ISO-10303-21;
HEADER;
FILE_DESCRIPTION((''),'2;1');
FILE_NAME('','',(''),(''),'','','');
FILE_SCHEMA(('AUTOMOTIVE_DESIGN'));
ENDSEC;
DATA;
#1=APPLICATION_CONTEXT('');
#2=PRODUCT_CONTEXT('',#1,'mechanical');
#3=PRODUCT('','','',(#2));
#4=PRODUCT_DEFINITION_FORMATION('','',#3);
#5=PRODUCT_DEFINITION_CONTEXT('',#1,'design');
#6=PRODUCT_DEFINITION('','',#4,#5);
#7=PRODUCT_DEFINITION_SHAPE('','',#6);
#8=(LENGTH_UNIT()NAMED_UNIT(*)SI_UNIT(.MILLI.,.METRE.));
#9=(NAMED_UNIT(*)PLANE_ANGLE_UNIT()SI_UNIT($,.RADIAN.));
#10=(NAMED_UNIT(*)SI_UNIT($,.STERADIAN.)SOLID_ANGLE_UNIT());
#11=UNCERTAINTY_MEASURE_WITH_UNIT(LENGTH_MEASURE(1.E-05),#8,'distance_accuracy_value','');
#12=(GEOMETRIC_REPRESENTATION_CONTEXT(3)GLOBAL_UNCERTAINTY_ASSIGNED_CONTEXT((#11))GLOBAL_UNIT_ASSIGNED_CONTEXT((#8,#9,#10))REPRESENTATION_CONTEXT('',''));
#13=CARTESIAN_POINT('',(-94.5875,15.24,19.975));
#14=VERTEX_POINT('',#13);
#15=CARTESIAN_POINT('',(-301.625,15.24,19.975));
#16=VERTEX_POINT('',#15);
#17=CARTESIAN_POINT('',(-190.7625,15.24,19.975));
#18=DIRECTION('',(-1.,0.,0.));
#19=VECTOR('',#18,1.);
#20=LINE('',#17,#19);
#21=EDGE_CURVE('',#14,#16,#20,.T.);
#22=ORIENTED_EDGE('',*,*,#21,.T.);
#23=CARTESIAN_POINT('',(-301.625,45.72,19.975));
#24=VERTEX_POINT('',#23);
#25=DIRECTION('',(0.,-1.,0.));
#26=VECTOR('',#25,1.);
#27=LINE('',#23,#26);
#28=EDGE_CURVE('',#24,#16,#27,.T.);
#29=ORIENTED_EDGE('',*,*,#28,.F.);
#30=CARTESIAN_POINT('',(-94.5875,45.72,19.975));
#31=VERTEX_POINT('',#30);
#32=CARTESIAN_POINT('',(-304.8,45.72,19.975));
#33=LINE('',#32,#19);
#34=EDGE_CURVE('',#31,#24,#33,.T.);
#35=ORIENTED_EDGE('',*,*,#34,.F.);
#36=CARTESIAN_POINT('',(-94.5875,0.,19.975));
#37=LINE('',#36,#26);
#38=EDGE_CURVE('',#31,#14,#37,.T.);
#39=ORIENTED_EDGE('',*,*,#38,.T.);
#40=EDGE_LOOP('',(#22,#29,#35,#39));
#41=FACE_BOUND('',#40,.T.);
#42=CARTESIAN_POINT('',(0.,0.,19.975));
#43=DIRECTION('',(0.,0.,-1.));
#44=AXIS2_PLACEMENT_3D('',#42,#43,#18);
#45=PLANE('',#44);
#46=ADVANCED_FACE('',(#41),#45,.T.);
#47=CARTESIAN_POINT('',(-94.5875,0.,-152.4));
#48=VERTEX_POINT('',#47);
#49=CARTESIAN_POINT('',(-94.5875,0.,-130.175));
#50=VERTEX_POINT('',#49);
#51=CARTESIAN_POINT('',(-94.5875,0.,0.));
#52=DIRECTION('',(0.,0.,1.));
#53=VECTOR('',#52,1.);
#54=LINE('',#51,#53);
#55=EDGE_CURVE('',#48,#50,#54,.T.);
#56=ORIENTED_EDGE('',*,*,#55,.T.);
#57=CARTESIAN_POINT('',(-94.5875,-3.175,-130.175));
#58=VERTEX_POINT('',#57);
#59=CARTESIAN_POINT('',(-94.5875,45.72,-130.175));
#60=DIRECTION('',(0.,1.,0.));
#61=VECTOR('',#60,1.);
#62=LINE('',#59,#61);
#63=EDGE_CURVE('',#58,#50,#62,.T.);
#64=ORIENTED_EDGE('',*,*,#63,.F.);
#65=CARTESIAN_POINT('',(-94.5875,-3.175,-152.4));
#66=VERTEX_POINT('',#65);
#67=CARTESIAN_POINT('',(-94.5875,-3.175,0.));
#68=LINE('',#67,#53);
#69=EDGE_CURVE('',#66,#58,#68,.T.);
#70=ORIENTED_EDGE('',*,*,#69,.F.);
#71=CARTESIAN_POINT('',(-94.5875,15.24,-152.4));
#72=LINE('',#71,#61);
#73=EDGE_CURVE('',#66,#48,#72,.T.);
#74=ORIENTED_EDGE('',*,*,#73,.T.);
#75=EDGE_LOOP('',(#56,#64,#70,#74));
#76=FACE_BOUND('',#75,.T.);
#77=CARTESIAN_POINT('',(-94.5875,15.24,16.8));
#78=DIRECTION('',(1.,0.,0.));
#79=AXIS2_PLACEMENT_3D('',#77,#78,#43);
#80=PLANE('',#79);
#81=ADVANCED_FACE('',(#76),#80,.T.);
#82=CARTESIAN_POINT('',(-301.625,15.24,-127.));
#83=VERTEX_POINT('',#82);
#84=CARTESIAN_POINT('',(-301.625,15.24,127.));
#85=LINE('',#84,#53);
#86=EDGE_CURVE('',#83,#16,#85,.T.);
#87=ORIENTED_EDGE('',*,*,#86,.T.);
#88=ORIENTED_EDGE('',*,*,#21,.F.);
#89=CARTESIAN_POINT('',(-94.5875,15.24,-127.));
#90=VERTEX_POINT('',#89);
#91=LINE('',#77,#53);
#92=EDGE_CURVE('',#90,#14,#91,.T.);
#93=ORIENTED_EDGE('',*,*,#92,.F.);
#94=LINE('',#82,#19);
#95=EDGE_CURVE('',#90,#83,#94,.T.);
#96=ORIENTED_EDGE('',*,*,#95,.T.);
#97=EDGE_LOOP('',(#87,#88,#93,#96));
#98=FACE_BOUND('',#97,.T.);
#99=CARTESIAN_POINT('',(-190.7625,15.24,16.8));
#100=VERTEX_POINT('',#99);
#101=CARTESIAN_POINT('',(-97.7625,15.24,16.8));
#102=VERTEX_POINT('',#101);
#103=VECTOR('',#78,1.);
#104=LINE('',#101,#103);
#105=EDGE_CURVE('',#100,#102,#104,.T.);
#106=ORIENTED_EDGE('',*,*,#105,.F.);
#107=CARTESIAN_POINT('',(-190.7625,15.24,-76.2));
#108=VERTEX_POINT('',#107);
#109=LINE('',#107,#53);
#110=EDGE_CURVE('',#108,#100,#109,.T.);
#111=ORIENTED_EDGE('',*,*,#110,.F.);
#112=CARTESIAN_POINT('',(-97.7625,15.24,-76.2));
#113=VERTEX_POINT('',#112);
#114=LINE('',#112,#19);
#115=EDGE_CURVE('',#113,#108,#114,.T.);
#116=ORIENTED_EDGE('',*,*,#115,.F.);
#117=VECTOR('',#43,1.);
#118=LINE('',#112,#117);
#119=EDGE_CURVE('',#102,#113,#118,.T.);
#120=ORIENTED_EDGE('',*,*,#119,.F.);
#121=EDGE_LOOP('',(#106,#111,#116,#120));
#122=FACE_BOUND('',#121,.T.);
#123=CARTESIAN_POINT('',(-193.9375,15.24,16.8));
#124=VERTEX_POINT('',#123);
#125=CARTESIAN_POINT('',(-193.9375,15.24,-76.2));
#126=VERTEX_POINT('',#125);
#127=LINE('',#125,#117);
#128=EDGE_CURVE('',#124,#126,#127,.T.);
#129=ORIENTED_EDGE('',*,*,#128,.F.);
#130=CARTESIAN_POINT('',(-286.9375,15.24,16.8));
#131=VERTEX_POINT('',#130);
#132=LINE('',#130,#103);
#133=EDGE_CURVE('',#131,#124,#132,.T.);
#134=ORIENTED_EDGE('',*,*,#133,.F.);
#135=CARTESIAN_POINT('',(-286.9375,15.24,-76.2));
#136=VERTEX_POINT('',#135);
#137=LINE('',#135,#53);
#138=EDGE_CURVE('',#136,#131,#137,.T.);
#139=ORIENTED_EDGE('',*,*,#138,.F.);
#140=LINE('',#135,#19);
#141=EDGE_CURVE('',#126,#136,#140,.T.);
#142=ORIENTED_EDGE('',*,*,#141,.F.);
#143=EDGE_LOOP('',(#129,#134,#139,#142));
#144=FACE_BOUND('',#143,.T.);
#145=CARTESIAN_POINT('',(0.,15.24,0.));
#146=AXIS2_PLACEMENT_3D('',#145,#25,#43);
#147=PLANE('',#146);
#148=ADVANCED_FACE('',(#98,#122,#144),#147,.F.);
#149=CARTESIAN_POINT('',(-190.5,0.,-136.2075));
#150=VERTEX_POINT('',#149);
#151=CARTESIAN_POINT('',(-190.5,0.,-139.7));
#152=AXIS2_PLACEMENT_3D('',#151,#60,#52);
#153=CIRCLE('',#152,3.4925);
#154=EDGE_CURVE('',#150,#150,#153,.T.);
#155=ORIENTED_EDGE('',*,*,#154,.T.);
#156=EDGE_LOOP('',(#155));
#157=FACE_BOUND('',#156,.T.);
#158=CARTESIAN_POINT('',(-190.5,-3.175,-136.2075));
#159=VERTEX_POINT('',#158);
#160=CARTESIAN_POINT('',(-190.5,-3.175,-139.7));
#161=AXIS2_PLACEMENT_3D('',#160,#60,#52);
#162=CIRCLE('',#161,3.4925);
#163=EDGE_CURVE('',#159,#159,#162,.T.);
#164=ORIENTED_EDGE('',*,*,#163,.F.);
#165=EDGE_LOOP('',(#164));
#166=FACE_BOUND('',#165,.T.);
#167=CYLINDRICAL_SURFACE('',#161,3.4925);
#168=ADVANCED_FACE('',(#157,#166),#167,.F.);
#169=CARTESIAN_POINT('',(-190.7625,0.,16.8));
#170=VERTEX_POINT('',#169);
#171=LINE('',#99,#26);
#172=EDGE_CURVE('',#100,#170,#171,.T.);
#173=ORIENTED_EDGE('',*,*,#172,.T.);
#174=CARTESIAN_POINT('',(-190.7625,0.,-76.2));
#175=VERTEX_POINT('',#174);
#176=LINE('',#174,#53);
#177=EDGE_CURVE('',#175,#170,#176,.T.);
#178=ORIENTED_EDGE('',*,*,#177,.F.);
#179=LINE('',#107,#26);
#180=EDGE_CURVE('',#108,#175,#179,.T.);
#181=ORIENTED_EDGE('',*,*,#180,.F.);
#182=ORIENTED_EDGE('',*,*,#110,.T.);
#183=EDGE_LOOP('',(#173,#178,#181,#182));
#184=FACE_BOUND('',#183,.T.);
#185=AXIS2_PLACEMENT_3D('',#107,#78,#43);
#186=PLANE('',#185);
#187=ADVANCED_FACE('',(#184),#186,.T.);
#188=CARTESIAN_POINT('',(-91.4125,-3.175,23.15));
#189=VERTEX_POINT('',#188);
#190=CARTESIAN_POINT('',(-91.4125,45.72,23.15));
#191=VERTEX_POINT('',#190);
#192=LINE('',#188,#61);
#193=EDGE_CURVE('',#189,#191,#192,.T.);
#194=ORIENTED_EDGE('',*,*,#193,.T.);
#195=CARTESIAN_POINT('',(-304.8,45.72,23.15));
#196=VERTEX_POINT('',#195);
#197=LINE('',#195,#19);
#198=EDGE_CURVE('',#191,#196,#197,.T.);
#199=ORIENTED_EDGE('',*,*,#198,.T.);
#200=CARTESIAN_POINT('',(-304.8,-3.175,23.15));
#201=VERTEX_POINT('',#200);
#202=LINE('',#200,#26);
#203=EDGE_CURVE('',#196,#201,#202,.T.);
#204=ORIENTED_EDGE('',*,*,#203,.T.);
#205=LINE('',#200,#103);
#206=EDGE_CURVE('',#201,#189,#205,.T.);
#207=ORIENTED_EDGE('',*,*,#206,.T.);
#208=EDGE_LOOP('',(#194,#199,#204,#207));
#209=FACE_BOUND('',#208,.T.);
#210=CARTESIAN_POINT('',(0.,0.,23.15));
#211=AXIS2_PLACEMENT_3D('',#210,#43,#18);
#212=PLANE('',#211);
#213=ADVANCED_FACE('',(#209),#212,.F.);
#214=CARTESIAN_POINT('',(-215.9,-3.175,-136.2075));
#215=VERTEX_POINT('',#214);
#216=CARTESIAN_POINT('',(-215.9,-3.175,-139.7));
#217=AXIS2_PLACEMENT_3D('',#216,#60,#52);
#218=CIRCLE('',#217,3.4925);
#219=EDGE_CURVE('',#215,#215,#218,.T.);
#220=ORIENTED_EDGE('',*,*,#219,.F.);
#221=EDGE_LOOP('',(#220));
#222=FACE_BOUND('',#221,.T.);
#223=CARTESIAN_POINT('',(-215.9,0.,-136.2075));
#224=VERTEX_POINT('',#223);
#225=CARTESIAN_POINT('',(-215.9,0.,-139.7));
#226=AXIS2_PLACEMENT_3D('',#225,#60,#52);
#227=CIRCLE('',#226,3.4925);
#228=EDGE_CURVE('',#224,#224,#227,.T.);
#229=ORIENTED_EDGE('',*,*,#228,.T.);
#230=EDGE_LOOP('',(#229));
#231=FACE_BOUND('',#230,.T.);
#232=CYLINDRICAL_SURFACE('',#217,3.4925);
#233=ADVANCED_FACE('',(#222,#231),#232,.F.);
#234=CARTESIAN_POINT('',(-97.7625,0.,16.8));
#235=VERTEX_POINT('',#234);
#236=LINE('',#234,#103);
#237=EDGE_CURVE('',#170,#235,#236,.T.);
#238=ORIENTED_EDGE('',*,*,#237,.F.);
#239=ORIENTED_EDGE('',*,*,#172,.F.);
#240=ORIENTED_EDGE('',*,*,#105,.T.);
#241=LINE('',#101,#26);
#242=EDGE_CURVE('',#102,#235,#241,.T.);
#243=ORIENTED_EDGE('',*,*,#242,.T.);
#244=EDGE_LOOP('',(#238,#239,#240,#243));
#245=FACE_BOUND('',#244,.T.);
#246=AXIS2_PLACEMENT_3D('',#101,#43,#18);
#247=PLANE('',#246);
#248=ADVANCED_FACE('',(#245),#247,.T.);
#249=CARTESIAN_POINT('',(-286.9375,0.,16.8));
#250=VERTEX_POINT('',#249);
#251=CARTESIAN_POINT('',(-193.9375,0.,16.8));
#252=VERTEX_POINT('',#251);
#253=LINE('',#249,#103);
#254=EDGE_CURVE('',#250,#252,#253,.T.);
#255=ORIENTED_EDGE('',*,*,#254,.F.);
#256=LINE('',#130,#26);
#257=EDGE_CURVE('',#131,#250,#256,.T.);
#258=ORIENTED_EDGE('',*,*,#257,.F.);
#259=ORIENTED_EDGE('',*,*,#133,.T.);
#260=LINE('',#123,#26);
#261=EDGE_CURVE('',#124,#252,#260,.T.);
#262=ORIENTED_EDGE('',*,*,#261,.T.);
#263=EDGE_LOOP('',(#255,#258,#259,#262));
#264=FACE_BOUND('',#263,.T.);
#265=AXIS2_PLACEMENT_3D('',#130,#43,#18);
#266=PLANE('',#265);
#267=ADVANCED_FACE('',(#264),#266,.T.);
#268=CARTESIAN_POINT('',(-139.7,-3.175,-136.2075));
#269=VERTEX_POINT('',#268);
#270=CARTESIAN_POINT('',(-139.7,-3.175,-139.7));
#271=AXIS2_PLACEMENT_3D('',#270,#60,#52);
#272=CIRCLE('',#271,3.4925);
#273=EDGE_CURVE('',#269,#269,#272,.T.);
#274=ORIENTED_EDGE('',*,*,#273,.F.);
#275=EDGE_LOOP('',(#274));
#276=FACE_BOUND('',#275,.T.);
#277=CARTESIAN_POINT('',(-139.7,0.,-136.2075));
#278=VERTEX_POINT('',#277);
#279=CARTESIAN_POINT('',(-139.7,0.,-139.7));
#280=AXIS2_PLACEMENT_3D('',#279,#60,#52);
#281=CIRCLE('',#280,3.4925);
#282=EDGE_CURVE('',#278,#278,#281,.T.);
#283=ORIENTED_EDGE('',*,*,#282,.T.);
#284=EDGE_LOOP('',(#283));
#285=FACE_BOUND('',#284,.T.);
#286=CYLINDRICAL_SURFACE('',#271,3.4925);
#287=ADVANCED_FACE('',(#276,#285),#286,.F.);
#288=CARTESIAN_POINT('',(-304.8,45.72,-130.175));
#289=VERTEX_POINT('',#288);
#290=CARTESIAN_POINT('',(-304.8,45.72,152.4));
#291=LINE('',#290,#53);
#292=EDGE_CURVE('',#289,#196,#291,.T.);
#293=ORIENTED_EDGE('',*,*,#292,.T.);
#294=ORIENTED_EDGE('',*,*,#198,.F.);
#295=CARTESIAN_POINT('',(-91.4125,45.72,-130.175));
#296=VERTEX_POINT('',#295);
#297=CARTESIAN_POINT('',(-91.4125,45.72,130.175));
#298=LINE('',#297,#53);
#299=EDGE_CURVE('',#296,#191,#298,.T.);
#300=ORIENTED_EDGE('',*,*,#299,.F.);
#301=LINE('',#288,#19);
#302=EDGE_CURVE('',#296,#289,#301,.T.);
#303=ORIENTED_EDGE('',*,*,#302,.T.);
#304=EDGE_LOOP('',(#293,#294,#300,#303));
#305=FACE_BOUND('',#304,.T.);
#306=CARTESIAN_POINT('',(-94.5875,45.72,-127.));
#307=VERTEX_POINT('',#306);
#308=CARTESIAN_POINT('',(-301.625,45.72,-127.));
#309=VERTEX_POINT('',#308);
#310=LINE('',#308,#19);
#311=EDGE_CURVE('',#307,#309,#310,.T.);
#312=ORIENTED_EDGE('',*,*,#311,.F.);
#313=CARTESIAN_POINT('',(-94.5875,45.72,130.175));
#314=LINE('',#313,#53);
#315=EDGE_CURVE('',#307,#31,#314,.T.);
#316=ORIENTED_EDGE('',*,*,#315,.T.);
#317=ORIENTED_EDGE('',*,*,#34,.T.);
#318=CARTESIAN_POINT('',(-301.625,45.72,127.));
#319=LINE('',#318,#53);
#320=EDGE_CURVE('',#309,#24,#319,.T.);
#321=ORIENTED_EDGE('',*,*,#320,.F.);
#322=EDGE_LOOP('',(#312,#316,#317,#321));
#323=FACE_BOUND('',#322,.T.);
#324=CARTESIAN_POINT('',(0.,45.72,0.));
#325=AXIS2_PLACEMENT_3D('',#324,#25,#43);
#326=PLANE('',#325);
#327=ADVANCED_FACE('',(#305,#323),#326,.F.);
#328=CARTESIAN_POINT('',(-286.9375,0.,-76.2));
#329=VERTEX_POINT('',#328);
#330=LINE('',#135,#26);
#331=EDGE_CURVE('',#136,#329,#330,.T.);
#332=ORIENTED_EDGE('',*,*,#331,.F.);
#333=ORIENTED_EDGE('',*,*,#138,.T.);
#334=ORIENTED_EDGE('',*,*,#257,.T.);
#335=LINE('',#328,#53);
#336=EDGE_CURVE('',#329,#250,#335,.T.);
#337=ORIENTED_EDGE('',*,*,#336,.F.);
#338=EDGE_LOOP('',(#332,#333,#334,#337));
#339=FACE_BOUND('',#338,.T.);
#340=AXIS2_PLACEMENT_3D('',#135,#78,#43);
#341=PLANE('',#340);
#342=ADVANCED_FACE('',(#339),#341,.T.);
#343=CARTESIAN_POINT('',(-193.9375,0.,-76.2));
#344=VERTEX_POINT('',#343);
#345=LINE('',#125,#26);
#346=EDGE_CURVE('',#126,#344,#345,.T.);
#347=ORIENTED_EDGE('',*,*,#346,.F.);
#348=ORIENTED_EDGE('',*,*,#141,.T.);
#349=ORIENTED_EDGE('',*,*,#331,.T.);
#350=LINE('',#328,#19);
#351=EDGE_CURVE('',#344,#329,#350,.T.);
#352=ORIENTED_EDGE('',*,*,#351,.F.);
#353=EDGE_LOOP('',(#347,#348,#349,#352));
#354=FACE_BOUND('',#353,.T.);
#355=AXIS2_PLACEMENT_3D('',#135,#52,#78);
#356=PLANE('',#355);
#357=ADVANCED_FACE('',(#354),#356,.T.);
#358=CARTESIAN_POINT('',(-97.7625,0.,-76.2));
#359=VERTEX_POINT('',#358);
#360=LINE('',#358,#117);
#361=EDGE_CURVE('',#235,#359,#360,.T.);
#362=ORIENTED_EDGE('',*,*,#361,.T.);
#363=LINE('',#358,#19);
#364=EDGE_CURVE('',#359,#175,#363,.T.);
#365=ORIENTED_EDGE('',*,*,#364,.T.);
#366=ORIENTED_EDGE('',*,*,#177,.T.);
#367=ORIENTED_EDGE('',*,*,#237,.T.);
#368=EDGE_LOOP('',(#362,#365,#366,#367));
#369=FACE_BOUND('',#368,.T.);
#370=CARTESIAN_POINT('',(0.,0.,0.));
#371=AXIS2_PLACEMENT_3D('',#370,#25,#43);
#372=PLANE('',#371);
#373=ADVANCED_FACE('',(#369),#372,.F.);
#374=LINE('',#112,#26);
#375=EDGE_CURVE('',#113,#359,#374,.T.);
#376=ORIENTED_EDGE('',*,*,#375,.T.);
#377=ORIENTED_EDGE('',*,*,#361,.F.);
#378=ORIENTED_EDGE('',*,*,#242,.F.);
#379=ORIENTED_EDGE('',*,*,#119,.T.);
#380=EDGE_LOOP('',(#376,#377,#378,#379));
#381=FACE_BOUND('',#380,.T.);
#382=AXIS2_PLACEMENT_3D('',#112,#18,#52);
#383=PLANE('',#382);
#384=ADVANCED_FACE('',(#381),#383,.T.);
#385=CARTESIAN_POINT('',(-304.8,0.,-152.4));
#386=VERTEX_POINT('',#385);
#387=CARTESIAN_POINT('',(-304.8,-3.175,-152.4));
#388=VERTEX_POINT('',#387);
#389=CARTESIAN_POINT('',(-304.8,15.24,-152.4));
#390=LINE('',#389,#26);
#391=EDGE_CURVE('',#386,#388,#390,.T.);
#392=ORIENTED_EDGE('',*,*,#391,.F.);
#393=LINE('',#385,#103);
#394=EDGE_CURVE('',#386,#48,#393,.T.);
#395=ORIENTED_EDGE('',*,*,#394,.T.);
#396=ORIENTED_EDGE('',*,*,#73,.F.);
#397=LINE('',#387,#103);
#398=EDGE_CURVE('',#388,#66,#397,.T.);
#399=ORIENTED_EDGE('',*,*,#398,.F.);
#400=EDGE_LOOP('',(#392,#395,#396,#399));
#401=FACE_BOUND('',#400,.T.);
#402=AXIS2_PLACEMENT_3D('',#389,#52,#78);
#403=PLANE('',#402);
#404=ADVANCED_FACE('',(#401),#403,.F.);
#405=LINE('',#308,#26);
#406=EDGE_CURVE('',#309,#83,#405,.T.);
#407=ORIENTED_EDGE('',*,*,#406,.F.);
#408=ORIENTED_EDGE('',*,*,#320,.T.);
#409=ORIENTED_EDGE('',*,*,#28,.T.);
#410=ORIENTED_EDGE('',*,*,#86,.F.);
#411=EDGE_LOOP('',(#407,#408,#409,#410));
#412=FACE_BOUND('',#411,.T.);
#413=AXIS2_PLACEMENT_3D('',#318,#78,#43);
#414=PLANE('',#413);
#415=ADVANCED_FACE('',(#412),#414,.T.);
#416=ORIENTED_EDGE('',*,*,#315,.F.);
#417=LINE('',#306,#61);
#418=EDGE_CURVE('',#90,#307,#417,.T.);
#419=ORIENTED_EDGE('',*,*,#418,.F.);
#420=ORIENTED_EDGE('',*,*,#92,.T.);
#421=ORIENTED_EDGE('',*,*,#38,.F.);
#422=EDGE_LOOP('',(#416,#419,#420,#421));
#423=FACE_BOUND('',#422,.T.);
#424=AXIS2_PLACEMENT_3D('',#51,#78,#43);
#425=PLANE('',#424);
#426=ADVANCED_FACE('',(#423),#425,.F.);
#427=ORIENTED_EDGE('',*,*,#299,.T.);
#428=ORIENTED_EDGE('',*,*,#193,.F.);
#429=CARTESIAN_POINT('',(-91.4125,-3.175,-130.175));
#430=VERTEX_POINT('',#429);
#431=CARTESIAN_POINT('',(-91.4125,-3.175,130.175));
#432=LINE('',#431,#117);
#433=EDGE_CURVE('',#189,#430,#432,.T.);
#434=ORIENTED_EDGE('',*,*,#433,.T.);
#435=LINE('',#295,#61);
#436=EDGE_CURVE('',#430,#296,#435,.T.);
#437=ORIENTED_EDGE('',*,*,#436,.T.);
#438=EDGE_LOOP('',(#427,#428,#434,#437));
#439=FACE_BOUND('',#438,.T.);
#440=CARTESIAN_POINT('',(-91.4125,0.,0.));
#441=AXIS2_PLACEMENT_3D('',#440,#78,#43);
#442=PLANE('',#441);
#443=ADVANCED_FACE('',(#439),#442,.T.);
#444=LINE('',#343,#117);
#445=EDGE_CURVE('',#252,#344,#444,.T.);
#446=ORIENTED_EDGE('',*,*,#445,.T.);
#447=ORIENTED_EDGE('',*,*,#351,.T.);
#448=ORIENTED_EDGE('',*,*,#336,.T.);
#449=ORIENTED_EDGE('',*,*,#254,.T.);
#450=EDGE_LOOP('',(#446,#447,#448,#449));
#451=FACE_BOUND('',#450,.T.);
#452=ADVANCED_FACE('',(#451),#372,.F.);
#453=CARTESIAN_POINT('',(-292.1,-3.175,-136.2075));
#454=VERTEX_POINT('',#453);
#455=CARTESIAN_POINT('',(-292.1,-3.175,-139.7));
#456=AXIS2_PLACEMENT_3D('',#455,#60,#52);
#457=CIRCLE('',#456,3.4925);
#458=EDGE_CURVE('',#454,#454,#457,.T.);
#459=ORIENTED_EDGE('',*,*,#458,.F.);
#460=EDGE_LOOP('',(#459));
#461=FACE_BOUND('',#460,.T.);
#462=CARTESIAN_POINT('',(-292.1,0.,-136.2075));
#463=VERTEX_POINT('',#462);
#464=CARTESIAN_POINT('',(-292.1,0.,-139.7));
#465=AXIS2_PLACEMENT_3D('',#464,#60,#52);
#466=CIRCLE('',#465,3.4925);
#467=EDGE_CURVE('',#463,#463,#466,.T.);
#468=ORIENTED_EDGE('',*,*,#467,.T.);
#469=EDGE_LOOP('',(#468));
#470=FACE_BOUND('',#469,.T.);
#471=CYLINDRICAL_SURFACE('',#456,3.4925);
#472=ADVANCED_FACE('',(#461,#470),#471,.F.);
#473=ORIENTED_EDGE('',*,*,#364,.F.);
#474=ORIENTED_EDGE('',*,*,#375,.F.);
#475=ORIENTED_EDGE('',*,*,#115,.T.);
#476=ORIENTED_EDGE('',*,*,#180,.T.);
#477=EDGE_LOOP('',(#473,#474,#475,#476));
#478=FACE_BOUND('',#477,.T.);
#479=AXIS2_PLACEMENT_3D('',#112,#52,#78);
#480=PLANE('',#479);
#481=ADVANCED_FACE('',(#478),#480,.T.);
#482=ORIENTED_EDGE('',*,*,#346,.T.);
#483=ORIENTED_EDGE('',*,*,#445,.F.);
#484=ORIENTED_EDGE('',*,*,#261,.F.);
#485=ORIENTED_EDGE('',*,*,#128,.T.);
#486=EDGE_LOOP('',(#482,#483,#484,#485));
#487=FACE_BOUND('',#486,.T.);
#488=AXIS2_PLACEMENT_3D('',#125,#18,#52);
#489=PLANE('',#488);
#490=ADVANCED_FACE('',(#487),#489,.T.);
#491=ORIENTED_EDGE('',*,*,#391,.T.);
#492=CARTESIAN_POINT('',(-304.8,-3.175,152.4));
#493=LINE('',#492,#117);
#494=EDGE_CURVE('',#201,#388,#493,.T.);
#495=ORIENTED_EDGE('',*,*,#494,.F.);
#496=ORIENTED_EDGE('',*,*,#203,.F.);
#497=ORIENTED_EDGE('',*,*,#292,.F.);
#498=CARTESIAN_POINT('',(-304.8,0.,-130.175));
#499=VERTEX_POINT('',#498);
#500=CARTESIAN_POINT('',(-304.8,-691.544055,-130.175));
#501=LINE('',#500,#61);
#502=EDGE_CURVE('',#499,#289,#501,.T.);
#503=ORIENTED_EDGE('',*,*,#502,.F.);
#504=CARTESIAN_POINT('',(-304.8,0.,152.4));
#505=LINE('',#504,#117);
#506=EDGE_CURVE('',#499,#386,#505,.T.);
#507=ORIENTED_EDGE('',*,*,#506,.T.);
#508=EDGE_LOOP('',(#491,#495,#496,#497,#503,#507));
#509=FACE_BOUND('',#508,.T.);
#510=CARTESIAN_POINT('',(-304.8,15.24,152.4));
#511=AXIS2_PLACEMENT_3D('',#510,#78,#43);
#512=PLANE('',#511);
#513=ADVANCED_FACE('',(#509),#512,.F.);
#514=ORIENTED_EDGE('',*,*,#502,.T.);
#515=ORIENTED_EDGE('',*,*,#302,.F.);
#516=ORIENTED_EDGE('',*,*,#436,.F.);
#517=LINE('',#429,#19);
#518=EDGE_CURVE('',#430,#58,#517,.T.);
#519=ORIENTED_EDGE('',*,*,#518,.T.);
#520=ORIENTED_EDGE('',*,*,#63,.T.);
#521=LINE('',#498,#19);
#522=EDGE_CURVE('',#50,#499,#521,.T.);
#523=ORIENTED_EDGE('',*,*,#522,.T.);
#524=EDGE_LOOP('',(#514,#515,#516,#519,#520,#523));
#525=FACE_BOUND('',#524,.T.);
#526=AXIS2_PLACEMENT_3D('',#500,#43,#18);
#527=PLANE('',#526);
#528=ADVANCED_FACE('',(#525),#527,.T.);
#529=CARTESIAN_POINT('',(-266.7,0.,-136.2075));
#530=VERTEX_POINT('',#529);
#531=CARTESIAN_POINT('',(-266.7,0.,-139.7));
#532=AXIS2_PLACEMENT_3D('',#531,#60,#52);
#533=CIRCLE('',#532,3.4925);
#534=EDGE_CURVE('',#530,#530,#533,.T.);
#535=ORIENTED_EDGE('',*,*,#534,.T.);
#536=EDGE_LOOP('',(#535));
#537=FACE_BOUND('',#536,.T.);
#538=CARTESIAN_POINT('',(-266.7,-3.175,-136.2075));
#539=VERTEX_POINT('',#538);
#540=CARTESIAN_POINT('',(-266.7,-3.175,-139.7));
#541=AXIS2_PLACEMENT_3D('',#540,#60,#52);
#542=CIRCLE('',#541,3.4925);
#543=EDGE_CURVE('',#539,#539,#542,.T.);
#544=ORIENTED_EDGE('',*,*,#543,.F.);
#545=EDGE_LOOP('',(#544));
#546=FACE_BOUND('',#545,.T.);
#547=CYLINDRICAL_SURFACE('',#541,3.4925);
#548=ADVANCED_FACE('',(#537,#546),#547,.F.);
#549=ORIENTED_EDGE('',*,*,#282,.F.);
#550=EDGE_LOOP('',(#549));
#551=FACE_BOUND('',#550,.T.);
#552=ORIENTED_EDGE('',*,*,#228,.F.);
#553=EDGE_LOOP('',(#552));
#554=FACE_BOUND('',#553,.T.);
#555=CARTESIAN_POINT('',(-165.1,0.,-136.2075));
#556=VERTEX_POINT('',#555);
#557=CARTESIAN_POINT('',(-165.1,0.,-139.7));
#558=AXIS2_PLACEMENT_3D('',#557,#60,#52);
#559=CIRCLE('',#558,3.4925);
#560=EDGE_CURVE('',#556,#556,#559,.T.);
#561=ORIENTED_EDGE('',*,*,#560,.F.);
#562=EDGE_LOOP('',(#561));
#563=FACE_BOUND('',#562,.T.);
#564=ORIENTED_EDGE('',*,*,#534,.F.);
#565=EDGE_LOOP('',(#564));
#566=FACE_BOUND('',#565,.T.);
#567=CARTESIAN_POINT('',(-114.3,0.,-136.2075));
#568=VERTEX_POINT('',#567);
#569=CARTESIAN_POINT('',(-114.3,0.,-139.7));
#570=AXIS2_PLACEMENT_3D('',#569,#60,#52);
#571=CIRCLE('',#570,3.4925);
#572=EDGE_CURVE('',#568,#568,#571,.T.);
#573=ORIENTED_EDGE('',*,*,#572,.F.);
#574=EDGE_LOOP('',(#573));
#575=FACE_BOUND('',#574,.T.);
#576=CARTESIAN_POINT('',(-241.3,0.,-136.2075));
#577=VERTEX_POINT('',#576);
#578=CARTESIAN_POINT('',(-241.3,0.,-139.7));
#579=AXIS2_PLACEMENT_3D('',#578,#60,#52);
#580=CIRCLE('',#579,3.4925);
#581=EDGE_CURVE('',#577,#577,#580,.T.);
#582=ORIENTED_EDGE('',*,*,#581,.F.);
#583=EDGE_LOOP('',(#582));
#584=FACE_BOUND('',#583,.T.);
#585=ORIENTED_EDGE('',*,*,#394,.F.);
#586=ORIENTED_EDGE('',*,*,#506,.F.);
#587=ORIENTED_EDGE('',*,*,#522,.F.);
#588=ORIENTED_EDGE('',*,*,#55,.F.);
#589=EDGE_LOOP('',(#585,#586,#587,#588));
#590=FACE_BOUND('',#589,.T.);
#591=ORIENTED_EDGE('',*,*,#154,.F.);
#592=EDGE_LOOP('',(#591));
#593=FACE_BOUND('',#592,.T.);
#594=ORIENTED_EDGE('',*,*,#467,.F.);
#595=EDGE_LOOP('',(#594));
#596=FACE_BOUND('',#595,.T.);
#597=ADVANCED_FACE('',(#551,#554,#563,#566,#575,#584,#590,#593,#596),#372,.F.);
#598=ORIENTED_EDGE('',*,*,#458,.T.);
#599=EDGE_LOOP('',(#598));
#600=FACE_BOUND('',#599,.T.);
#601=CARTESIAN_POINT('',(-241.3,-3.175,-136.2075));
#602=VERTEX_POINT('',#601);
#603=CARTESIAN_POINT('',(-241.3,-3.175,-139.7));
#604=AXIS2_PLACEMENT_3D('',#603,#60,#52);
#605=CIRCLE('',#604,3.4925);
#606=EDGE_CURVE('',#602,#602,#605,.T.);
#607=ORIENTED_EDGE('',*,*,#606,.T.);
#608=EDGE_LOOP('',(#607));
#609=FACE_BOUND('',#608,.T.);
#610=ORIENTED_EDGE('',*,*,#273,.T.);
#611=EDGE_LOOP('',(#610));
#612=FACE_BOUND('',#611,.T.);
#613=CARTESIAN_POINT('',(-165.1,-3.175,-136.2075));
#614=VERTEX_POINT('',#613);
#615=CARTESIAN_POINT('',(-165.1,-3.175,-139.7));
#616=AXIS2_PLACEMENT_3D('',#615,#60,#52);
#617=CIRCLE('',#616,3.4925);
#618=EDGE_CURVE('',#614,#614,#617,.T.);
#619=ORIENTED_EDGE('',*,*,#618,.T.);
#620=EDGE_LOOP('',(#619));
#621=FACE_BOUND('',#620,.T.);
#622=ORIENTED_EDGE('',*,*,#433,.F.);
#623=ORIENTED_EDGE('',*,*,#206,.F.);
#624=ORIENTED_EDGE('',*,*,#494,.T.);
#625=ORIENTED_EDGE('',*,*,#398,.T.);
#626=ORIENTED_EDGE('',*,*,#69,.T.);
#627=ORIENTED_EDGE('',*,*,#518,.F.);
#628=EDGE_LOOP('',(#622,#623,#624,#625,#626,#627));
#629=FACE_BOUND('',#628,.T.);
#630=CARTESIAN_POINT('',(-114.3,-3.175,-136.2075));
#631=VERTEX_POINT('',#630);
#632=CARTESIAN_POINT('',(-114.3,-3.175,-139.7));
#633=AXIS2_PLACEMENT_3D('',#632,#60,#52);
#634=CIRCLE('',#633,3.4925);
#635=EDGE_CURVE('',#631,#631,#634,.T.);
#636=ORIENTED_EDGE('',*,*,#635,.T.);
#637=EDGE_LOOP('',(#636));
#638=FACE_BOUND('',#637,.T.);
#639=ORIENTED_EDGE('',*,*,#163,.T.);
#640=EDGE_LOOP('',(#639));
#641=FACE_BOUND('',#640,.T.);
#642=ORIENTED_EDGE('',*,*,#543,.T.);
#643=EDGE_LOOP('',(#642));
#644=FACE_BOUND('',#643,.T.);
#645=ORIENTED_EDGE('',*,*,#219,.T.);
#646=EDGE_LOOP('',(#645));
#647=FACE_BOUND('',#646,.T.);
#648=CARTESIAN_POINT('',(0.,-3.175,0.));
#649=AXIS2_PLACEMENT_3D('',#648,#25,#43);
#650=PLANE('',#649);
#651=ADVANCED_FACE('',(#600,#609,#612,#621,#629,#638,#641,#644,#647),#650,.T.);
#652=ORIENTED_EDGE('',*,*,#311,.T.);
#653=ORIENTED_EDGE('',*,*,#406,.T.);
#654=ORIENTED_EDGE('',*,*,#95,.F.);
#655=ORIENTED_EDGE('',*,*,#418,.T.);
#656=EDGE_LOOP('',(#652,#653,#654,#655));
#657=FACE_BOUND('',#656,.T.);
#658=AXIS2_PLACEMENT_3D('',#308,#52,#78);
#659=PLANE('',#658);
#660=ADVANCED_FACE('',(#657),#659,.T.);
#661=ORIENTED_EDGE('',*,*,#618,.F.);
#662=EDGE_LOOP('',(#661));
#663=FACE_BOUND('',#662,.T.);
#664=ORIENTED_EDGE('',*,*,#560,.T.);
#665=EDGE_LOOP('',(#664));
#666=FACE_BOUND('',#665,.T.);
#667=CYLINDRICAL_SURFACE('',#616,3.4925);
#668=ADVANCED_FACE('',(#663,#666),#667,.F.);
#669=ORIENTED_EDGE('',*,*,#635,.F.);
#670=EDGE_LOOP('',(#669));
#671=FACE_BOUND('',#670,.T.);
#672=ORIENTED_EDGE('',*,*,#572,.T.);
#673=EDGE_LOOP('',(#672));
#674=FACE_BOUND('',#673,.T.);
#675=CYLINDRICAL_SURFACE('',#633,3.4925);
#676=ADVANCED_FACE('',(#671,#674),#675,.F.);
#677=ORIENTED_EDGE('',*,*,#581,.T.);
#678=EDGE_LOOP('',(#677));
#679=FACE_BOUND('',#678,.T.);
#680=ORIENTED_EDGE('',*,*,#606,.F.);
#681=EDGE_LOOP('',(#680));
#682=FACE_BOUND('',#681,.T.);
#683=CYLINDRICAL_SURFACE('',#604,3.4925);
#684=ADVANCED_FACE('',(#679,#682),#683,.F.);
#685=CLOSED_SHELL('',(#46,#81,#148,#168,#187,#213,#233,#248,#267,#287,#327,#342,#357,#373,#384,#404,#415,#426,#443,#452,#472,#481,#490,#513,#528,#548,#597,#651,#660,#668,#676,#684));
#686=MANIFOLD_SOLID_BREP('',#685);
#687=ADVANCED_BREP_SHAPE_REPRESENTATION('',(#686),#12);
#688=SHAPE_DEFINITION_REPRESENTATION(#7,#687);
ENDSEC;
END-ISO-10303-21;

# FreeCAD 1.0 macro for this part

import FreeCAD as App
import Part
import Sketcher

V = App.Vector
Q = App.Units.Quantity


def add_polygon(sketch, points):
    """Adds a closed chain of lines whose ends are joined by coincident constraints."""
    first, n = sketch.GeometryCount, len(points)
    for a, b in zip(points, points[1:] + points[:1]):
        sketch.addGeometry(Part.LineSegment(App.Vector(*a, 0), App.Vector(*b, 0)), False)
    for i in range(n):
        sketch.addConstraint(Sketcher.Constraint("Coincident", first + i, 2, first + (i + 1) % n, 1))

doc = App.newDocument("Part")
params = doc.addObject("Spreadsheet::Sheet", "Params")
for row, (alias, value) in enumerate([
    ("sketch1_width", "24 in"),
    ("sketch1_height", "12 in"),
    ("pad1_length", "0.6 in"),
    ("sketch2_width", "24 in"),
    ("sketch2_height", "12 in"),
    ("pad2_length", "0.125 in"),
    ("sketch3_width", "24 in"),
    ("sketch3_height", "12 in"),
    ("sketch3_height2", "10 in"),
    ("sketch3_width2", "23.75 in"),
    ("pad3_length", "1.2 in"),
    ("sketch4_width", "24 in"),
    ("sketch4_height", "10.25 in"),
    ("pocket1_length", "1.8 in"),
    ("sketch5_diameter", "0.275 in"),
    ("sketch7_height", "10.25 in"),
    ("sketch7_width", "1.925 in"),
    ("pad4_length", "0.125 in"),
    ("sketch9_height", "1.925 in"),
    ("pad5_length", "0.125 in"),
], start=1):
    params.set(f"A{row}", alias)
    params.set(f"B{row}", "=" + value)
    params.setAlias(f"B{row}", alias)

body = doc.addObject("PartDesign::Body", "Body")

# Sketch on XZ plane
sketch1 = body.newObject("Sketcher::SketchObject", "Sketch")
sketch1.AttachmentSupport = (doc.getObject("XZ_Plane"), [""])
sketch1.MapMode = "FlatFace"
add_polygon(sketch1, [(-305, -152), (-305, 152), (305, 152), (305, -152)])  # lines 0-3
add_polygon(sketch1, [(-194, 113), (-287, 113), (-287, 20), (-194, 20)])  # lines 4-7
add_polygon(sketch1, [(-98, 113), (-191, 113), (-191, 20), (-98, 20)])  # lines 8-11
add_polygon(sketch1, [(-2, 113), (-95, 113), (-95, 20), (-2, 20)])  # lines 12-15
add_polygon(sketch1, [(95, 113), (2, 113), (2, 20), (95, 20)])  # lines 16-19
add_polygon(sketch1, [(191, 113), (98, 113), (98, 20), (191, 20)])  # lines 20-23
add_polygon(sketch1, [(287, 113), (194, 113), (194, 20), (287, 20)])  # lines 24-27
add_polygon(sketch1, [(-194, 17), (-287, 17), (-287, -76), (-194, -76)])  # lines 28-31
add_polygon(sketch1, [(-98, 17), (-191, 17), (-191, -76), (-98, -76)])  # lines 32-35
add_polygon(sketch1, [(-2, 17), (-95, 17), (-95, -76), (-2, -76)])  # lines 36-39
add_polygon(sketch1, [(95, 17), (2, 17), (2, -76), (95, -76)])  # lines 40-43
add_polygon(sketch1, [(191, 17), (98, 17), (98, -76), (191, -76)])  # lines 44-47
add_polygon(sketch1, [(287, 17), (194, 17), (194, -76), (287, -76)])  # lines 48-51
sketch1.addConstraint([
    Sketcher.Constraint("Vertical", 0),
    Sketcher.Constraint("Horizontal", 1),
    Sketcher.Constraint("Vertical", 2),
    Sketcher.Constraint("Horizontal", 3),
    Sketcher.Constraint("Horizontal", 4),
    Sketcher.Constraint("Vertical", 5),
    Sketcher.Constraint("Horizontal", 6),
    Sketcher.Constraint("Vertical", 7),
    Sketcher.Constraint("Horizontal", 8),
    Sketcher.Constraint("Vertical", 9),
    Sketcher.Constraint("Horizontal", 10),
    Sketcher.Constraint("Vertical", 11),
    Sketcher.Constraint("Horizontal", 12),
    Sketcher.Constraint("Vertical", 13),
    Sketcher.Constraint("Horizontal", 14),
    Sketcher.Constraint("Vertical", 15),
    Sketcher.Constraint("Horizontal", 16),
    Sketcher.Constraint("Vertical", 17),
    Sketcher.Constraint("Horizontal", 18),
    Sketcher.Constraint("Vertical", 19),
    Sketcher.Constraint("Horizontal", 20),
    Sketcher.Constraint("Vertical", 21),
    Sketcher.Constraint("Horizontal", 22),
    Sketcher.Constraint("Vertical", 23),
    Sketcher.Constraint("Horizontal", 24),
    Sketcher.Constraint("Vertical", 25),
    Sketcher.Constraint("Horizontal", 26),
    Sketcher.Constraint("Vertical", 27),
    Sketcher.Constraint("Horizontal", 28),
    Sketcher.Constraint("Vertical", 29),
    Sketcher.Constraint("Horizontal", 30),
    Sketcher.Constraint("Vertical", 31),
    Sketcher.Constraint("Horizontal", 32),
    Sketcher.Constraint("Vertical", 33),
    Sketcher.Constraint("Horizontal", 34),
    Sketcher.Constraint("Vertical", 35),
    Sketcher.Constraint("Horizontal", 36),
    Sketcher.Constraint("Vertical", 37),
    Sketcher.Constraint("Horizontal", 38),
    Sketcher.Constraint("Vertical", 39),
    Sketcher.Constraint("Horizontal", 40),
    Sketcher.Constraint("Vertical", 41),
    Sketcher.Constraint("Horizontal", 42),
    Sketcher.Constraint("Vertical", 43),
    Sketcher.Constraint("Horizontal", 44),
    Sketcher.Constraint("Vertical", 45),
    Sketcher.Constraint("Horizontal", 46),
    Sketcher.Constraint("Vertical", 47),
    Sketcher.Constraint("Horizontal", 48),
    Sketcher.Constraint("Vertical", 49),
    Sketcher.Constraint("Horizontal", 50),
    Sketcher.Constraint("Vertical", 51),
    Sketcher.Constraint("Symmetric", 0, 2, 2, 2, -1, 1),
    Sketcher.Constraint("Symmetric", 15, 2, 16, 2, -2),
    Sketcher.Constraint("Symmetric", 13, 2, 18, 2, -2),
    Sketcher.Constraint("Symmetric", 11, 2, 20, 2, -2),
    Sketcher.Constraint("Symmetric", 9, 2, 22, 2, -2),
    Sketcher.Constraint("Symmetric", 7, 2, 24, 2, -2),
    Sketcher.Constraint("Symmetric", 5, 2, 26, 2, -2),
    Sketcher.Constraint("Symmetric", 39, 2, 40, 2, -2),
    Sketcher.Constraint("Symmetric", 37, 2, 42, 2, -2),
    Sketcher.Constraint("Symmetric", 35, 2, 44, 2, -2),
    Sketcher.Constraint("Symmetric", 33, 2, 46, 2, -2),
    Sketcher.Constraint("Symmetric", 31, 2, 48, 2, -2),
    Sketcher.Constraint("Symmetric", 29, 2, 50, 2, -2),
    Sketcher.Constraint("Horizontal", 7, 2, 8, 2),
    Sketcher.Constraint("Horizontal", 6, 2, 9, 2),
    Sketcher.Constraint("Horizontal", 11, 2, 12, 2),
    Sketcher.Constraint("Horizontal", 10, 2, 13, 2),
    Sketcher.Constraint("Horizontal", 31, 2, 32, 2),
    Sketcher.Constraint("Horizontal", 30, 2, 33, 2),
    Sketcher.Constraint("Horizontal", 35, 2, 36, 2),
    Sketcher.Constraint("Horizontal", 34, 2, 37, 2),
    Sketcher.Constraint("Vertical", 5, 2, 28, 2),
    Sketcher.Constraint("Vertical", 7, 2, 30, 2),
    Sketcher.Constraint("Vertical", 9, 2, 32, 2),
    Sketcher.Constraint("Vertical", 11, 2, 34, 2),
    Sketcher.Constraint("Vertical", 13, 2, 36, 2),
    Sketcher.Constraint("Vertical", 15, 2, 38, 2),
    Sketcher.Constraint("Equal", 6, 8),
    Sketcher.Constraint("Equal", 10, 12),
    Sketcher.Constraint("Equal", 50, 5),
    Sketcher.Constraint("Equal", 27, 29),
    Sketcher.Constraint("DistanceX", 1, 1, 1, 2, Q("24 in")),
    Sketcher.Constraint("DistanceY", 0, 1, 0, 2, Q("12 in")),
    Sketcher.Constraint("DistanceY", 29, 2, -1, 1, Q("3 in")),
    Sketcher.Constraint("DistanceX", 14, 2, -1, 1, Q("0.0625 in")),
    Sketcher.Constraint("DistanceX", 7, 2, 8, 2, Q("0.125 in")),
    Sketcher.Constraint("DistanceX", 11, 2, 12, 2, Q("0.125 in")),
    Sketcher.Constraint("DistanceY", 28, 2, 5, 2, Q("0.125 in")),
    Sketcher.Constraint("DistanceX", 4, 2, 4, 1, 93.0),
])
sketch1.setExpression("Constraints[135]", "Params.sketch1_width")
sketch1.setExpression("Constraints[136]", "Params.sketch1_height")
pad1 = body.newObject("PartDesign::Pad", "Pad")
pad1.Profile = sketch1
pad1.setExpression("Length", "Params.pad1_length")
pad1.Reversed = True

# Sketch on XZ plane
sketch2 = body.newObject("Sketcher::SketchObject", "Sketch001")
sketch2.AttachmentSupport = (doc.getObject("XZ_Plane"), [""])
sketch2.MapMode = "FlatFace"
add_polygon(sketch2, [(305, -152), (305, 152), (-305, 152), (-305, -152)])  # lines 0-3
sketch2.addConstraint([
    Sketcher.Constraint("Vertical", 0),
    Sketcher.Constraint("Horizontal", 1),
    Sketcher.Constraint("Vertical", 2),
    Sketcher.Constraint("Horizontal", 3),
    Sketcher.Constraint("Symmetric", 0, 2, 2, 2, -1, 1),
    Sketcher.Constraint("DistanceX", 1, 2, 1, 1, Q("24 in")),
    Sketcher.Constraint("DistanceY", 0, 1, 0, 2, Q("12 in")),
])
sketch2.setExpression("Constraints[9]", "Params.sketch2_width")
sketch2.setExpression("Constraints[10]", "Params.sketch2_height")
pad2 = body.newObject("PartDesign::Pad", "Pad001")
pad2.Profile = sketch2
pad2.setExpression("Length", "Params.pad2_length")

# Sketch on XZ plane
sketch3 = body.newObject("Sketcher::SketchObject", "Sketch002")
sketch3.AttachmentSupport = (doc.getObject("XZ_Plane"), [""])
sketch3.MapMode = "FlatFace"
sketch3.AttachmentOffset = App.Placement(V(0, 0, -0.6 * 25.4), App.Rotation())
add_polygon(sketch3, [(-305, -152), (-305, 152), (305, 152), (305, -152)])  # lines 0-3
add_polygon(sketch3, [(302, 127), (-302, 127), (-302, -127), (302, -127)])  # lines 4-7
sketch3.addConstraint([
    Sketcher.Constraint("Vertical", 0),
    Sketcher.Constraint("Horizontal", 1),
    Sketcher.Constraint("Vertical", 2),
    Sketcher.Constraint("Horizontal", 3),
    Sketcher.Constraint("Horizontal", 4),
    Sketcher.Constraint("Vertical", 5),
    Sketcher.Constraint("Horizontal", 6),
    Sketcher.Constraint("Vertical", 7),
    Sketcher.Constraint("Symmetric", 0, 2, 2, 2, -1, 1),
    Sketcher.Constraint("Symmetric", 4, 2, 6, 2, -1, 1),
    Sketcher.Constraint("DistanceX", 1, 1, 1, 2, Q("24 in")),
    Sketcher.Constraint("DistanceY", 0, 1, 0, 2, Q("12 in")),
    Sketcher.Constraint("DistanceY", 5, 2, 5, 1, Q("10 in")),
    Sketcher.Constraint("DistanceX", 4, 2, 4, 1, Q("23.75 in")),
])
sketch3.setExpression("Constraints[18]", "Params.sketch3_width")
sketch3.setExpression("Constraints[19]", "Params.sketch3_height")
sketch3.setExpression("Constraints[20]", "Params.sketch3_height2")
sketch3.setExpression("Constraints[21]", "Params.sketch3_width2")
pad3 = body.newObject("PartDesign::Pad", "Pad002")
pad3.Profile = sketch3
pad3.setExpression("Length", "Params.pad3_length")
pad3.Reversed = True

# Sketch on XZ plane
sketch4 = body.newObject("Sketcher::SketchObject", "Sketch003")
sketch4.AttachmentSupport = (doc.getObject("XZ_Plane"), [""])
sketch4.MapMode = "FlatFace"
sketch4.AttachmentOffset = App.Placement(V(0, 0, -1.8 * 25.4), App.Rotation())
add_polygon(sketch4, [(-374, -222), (-374, 222), (374, 222), (374, -222)])  # lines 0-3
add_polygon(sketch4, [(305, 130), (-305, 130), (-305, -130), (305, -130)])  # lines 4-7
sketch4.addConstraint([
    Sketcher.Constraint("Vertical", 0),
    Sketcher.Constraint("Horizontal", 1),
    Sketcher.Constraint("Vertical", 2),
    Sketcher.Constraint("Horizontal", 3),
    Sketcher.Constraint("Horizontal", 4),
    Sketcher.Constraint("Vertical", 5),
    Sketcher.Constraint("Horizontal", 6),
    Sketcher.Constraint("Vertical", 7),
    Sketcher.Constraint("Symmetric", 0, 2, 2, 2, -1, 1),
    Sketcher.Constraint("Symmetric", 4, 2, 6, 2, -1, 1),
    Sketcher.Constraint("DistanceX", 4, 2, 4, 1, Q("24 in")),
    Sketcher.Constraint("DistanceY", 5, 2, 5, 1, Q("10.25 in")),
    Sketcher.Constraint("DistanceX", 1, 1, 1, 2, 748.262),
    Sketcher.Constraint("DistanceY", 0, 1, 0, 2, 443.462),
])
sketch4.setExpression("Constraints[18]", "Params.sketch4_width")
sketch4.setExpression("Constraints[19]", "Params.sketch4_height")
pocket1 = body.newObject("PartDesign::Pocket", "Pocket")
pocket1.Profile = sketch4
pocket1.setExpression("Length", "Params.pocket1_length")
pocket1.Reversed = True

# Sketch on XZ plane
sketch5 = body.newObject("Sketcher::SketchObject", "Sketch004")
sketch5.AttachmentSupport = (doc.getObject("XZ_Plane"), [""])
sketch5.MapMode = "FlatFace"
sketch5.addGeometry([
    Part.Circle(V(-292.1, 139.7, 0), V(0, 0, 1), 3.5),  # 0
    Part.Circle(V(-266.7, 139.7, 0), V(0, 0, 1), 3.5),  # 1
    Part.Circle(V(-241.3, 139.7, 0), V(0, 0, 1), 3.5),  # 2
    Part.Circle(V(-215.9, 139.7, 0), V(0, 0, 1), 3.5),  # 3
    Part.Circle(V(-190.5, 139.7, 0), V(0, 0, 1), 3.5),  # 4
    Part.Circle(V(-165.1, 139.7, 0), V(0, 0, 1), 3.5),  # 5
    Part.Circle(V(-139.7, 139.7, 0), V(0, 0, 1), 3.5),  # 6
    Part.Circle(V(-114.3, 139.7, 0), V(0, 0, 1), 3.5),  # 7
    Part.Circle(V(-88.9, 139.7, 0), V(0, 0, 1), 3.5),  # 8
    Part.Circle(V(-63.5, 139.7, 0), V(0, 0, 1), 3.5),  # 9
    Part.Circle(V(-38.1, 139.7, 0), V(0, 0, 1), 3.5),  # 10
    Part.Circle(V(-12.7, 139.7, 0), V(0, 0, 1), 3.5),  # 11
    Part.Circle(V(12.7, -139.7, 0), V(0, 0, 1), 3.5),  # 12
    Part.Circle(V(38.1, -139.7, 0), V(0, 0, 1), 3.5),  # 13
    Part.Circle(V(63.5, -139.7, 0), V(0, 0, 1), 3.5),  # 14
    Part.Circle(V(88.9, -139.7, 0), V(0, 0, 1), 3.5),  # 15
    Part.Circle(V(114.3, -139.7, 0), V(0, 0, 1), 3.5),  # 16
    Part.Circle(V(139.7, -139.7, 0), V(0, 0, 1), 3.5),  # 17
    Part.Circle(V(165.1, -139.7, 0), V(0, 0, 1), 3.5),  # 18
    Part.Circle(V(190.5, -139.7, 0), V(0, 0, 1), 3.5),  # 19
    Part.Circle(V(215.9, -139.7, 0), V(0, 0, 1), 3.5),  # 20
    Part.Circle(V(241.3, -139.7, 0), V(0, 0, 1), 3.5),  # 21
    Part.Circle(V(-292.1, -139.7, 0), V(0, 0, 1), 3.5),  # 22
    Part.Circle(V(-266.7, -139.7, 0), V(0, 0, 1), 3.5),  # 23
    Part.Circle(V(-241.3, -139.7, 0), V(0, 0, 1), 3.5),  # 24
    Part.Circle(V(-215.9, -139.7, 0), V(0, 0, 1), 3.5),  # 25
    Part.Circle(V(-190.5, -139.7, 0), V(0, 0, 1), 3.5),  # 26
    Part.Circle(V(-165.1, -139.7, 0), V(0, 0, 1), 3.5),  # 27
    Part.Circle(V(-139.7, -139.7, 0), V(0, 0, 1), 3.5),  # 28
    Part.Circle(V(-114.3, -139.7, 0), V(0, 0, 1), 3.5),  # 29
    Part.Circle(V(-88.9, -139.7, 0), V(0, 0, 1), 3.5),  # 30
    Part.Circle(V(-63.5, -139.7, 0), V(0, 0, 1), 3.5),  # 31
    Part.Circle(V(-38.1, -139.7, 0), V(0, 0, 1), 3.5),  # 32
    Part.Circle(V(-12.7, -139.7, 0), V(0, 0, 1), 3.5),  # 33
    Part.Circle(V(266.7, -139.7, 0), V(0, 0, 1), 3.5),  # 34
    Part.Circle(V(292.1, -139.7, 0), V(0, 0, 1), 3.5),  # 35
    Part.Circle(V(12.7, 139.7, 0), V(0, 0, 1), 3.5),  # 36
    Part.Circle(V(38.1, 139.7, 0), V(0, 0, 1), 3.5),  # 37
    Part.Circle(V(63.5, 139.7, 0), V(0, 0, 1), 3.5),  # 38
    Part.Circle(V(88.9, 139.7, 0), V(0, 0, 1), 3.5),  # 39
    Part.Circle(V(114.3, 139.7, 0), V(0, 0, 1), 3.5),  # 40
    Part.Circle(V(139.7, 139.7, 0), V(0, 0, 1), 3.5),  # 41
    Part.Circle(V(165.1, 139.7, 0), V(0, 0, 1), 3.5),  # 42
    Part.Circle(V(190.5, 139.7, 0), V(0, 0, 1), 3.5),  # 43
    Part.Circle(V(215.9, 139.7, 0), V(0, 0, 1), 3.5),  # 44
    Part.Circle(V(241.3, 139.7, 0), V(0, 0, 1), 3.5),  # 45
    Part.Circle(V(266.7, 139.7, 0), V(0, 0, 1), 3.5),  # 46
    Part.Circle(V(292.1, 139.7, 0), V(0, 0, 1), 3.5),  # 47
], False)
sketch5.addConstraint([
    Sketcher.Constraint("Equal", 0, 1),
    Sketcher.Constraint("Equal", 1, 2),
    Sketcher.Constraint("Equal", 2, 3),
    Sketcher.Constraint("Equal", 3, 4),
    Sketcher.Constraint("Equal", 4, 5),
    Sketcher.Constraint("Equal", 5, 6),
    Sketcher.Constraint("Equal", 6, 7),
    Sketcher.Constraint("Equal", 7, 8),
    Sketcher.Constraint("Equal", 8, 9),
    Sketcher.Constraint("Equal", 9, 10),
    Sketcher.Constraint("Equal", 10, 11),
    Sketcher.Constraint("Equal", 11, 12),
    Sketcher.Constraint("Equal", 12, 13),
    Sketcher.Constraint("Equal", 13, 14),
    Sketcher.Constraint("Equal", 14, 15),
    Sketcher.Constraint("Equal", 15, 16),
    Sketcher.Constraint("Equal", 16, 17),
    Sketcher.Constraint("Equal", 17, 18),
    Sketcher.Constraint("Equal", 18, 19),
    Sketcher.Constraint("Equal", 19, 20),
    Sketcher.Constraint("Equal", 20, 21),
    Sketcher.Constraint("Equal", 21, 22),
    Sketcher.Constraint("Equal", 22, 23),
    Sketcher.Constraint("Equal", 23, 24),
    Sketcher.Constraint("Equal", 24, 25),
    Sketcher.Constraint("Equal", 25, 26),
    Sketcher.Constraint("Equal", 26, 27),
    Sketcher.Constraint("Equal", 27, 28),
    Sketcher.Constraint("Equal", 28, 29),
    Sketcher.Constraint("Equal", 29, 30),
    Sketcher.Constraint("Equal", 30, 31),
    Sketcher.Constraint("Equal", 31, 32),
    Sketcher.Constraint("Equal", 32, 33),
    Sketcher.Constraint("Equal", 33, 34),
    Sketcher.Constraint("Equal", 34, 35),
    Sketcher.Constraint("Equal", 35, 36),
    Sketcher.Constraint("Equal", 36, 37),
    Sketcher.Constraint("Equal", 37, 38),
    Sketcher.Constraint("Equal", 38, 39),
    Sketcher.Constraint("Equal", 39, 40),
    Sketcher.Constraint("Equal", 40, 41),
    Sketcher.Constraint("Equal", 41, 42),
    Sketcher.Constraint("Equal", 42, 43),
    Sketcher.Constraint("Equal", 43, 44),
    Sketcher.Constraint("Equal", 44, 45),
    Sketcher.Constraint("Equal", 45, 46),
    Sketcher.Constraint("Equal", 46, 47),
    Sketcher.Constraint("Symmetric", 11, 3, 12, 3, -1, 1),
    Sketcher.Constraint("Symmetric", 10, 3, 13, 3, -1, 1),
    Sketcher.Constraint("Symmetric", 9, 3, 14, 3, -1, 1),
    Sketcher.Constraint("Symmetric", 8, 3, 15, 3, -1, 1),
    Sketcher.Constraint("Symmetric", 7, 3, 16, 3, -1, 1),
    Sketcher.Constraint("Symmetric", 6, 3, 17, 3, -1, 1),
    Sketcher.Constraint("Symmetric", 5, 3, 18, 3, -1, 1),
    Sketcher.Constraint("Symmetric", 4, 3, 19, 3, -1, 1),
    Sketcher.Constraint("Symmetric", 3, 3, 20, 3, -1, 1),
    Sketcher.Constraint("Symmetric", 2, 3, 21, 3, -1, 1),
    Sketcher.Constraint("Symmetric", 1, 3, 34, 3, -1, 1),
    Sketcher.Constraint("Symmetric", 0, 3, 35, 3, -1, 1),
    Sketcher.Constraint("Symmetric", 33, 3, 36, 3, -1, 1),
    Sketcher.Constraint("Symmetric", 32, 3, 37, 3, -1, 1),
    Sketcher.Constraint("Symmetric", 31, 3, 38, 3, -1, 1),
    Sketcher.Constraint("Symmetric", 30, 3, 39, 3, -1, 1),
    Sketcher.Constraint("Symmetric", 29, 3, 40, 3, -1, 1),
    Sketcher.Constraint("Symmetric", 28, 3, 41, 3, -1, 1),
    Sketcher.Constraint("Symmetric", 27, 3, 42, 3, -1, 1),
    Sketcher.Constraint("Symmetric", 26, 3, 43, 3, -1, 1),
    Sketcher.Constraint("Symmetric", 25, 3, 44, 3, -1, 1),
    Sketcher.Constraint("Symmetric", 24, 3, 45, 3, -1, 1),
    Sketcher.Constraint("Symmetric", 23, 3, 46, 3, -1, 1),
    Sketcher.Constraint("Symmetric", 22, 3, 47, 3, -1, 1),
    Sketcher.Constraint("Symmetric", 21, 3, 24, 3, -2),
    Sketcher.Constraint("Symmetric", 20, 3, 25, 3, -2),
    Sketcher.Constraint("Symmetric", 19, 3, 26, 3, -2),
    Sketcher.Constraint("Symmetric", 18, 3, 27, 3, -2),
    Sketcher.Constraint("Symmetric", 17, 3, 28, 3, -2),
    Sketcher.Constraint("Symmetric", 16, 3, 29, 3, -2),
    Sketcher.Constraint("Symmetric", 15, 3, 30, 3, -2),
    Sketcher.Constraint("Symmetric", 14, 3, 31, 3, -2),
    Sketcher.Constraint("Symmetric", 13, 3, 32, 3, -2),
    Sketcher.Constraint("Symmetric", 12, 3, 33, 3, -2),
    Sketcher.Constraint("Symmetric", 23, 3, 34, 3, -2),
    Sketcher.Constraint("Symmetric", 22, 3, 35, 3, -2),
    Sketcher.Constraint("Horizontal", 0, 3, 1, 3),
    Sketcher.Constraint("Horizontal", 1, 3, 2, 3),
    Sketcher.Constraint("Horizontal", 2, 3, 3, 3),
    Sketcher.Constraint("Horizontal", 3, 3, 4, 3),
    Sketcher.Constraint("Horizontal", 4, 3, 5, 3),
    Sketcher.Constraint("Horizontal", 5, 3, 6, 3),
    Sketcher.Constraint("Horizontal", 6, 3, 7, 3),
    Sketcher.Constraint("Horizontal", 7, 3, 8, 3),
    Sketcher.Constraint("Horizontal", 8, 3, 9, 3),
    Sketcher.Constraint("Horizontal", 9, 3, 10, 3),
    Sketcher.Constraint("Horizontal", 10, 3, 11, 3),
    Sketcher.Constraint("Diameter", 0, Q("0.275 in")),
    Sketcher.Constraint("DistanceX", 0, 3, 1, 3, Q("1 in")),
    Sketcher.Constraint("DistanceX", 1, 3, 2, 3, Q("1 in")),
    Sketcher.Constraint("DistanceX", 2, 3, 3, 3, Q("1 in")),
    Sketcher.Constraint("DistanceX", 3, 3, 4, 3, Q("1 in")),
    Sketcher.Constraint("DistanceX", 4, 3, 5, 3, Q("1 in")),
    Sketcher.Constraint("DistanceX", 5, 3, 6, 3, Q("1 in")),
    Sketcher.Constraint("DistanceX", 6, 3, 7, 3, Q("1 in")),
    Sketcher.Constraint("DistanceX", 7, 3, 8, 3, Q("1 in")),
    Sketcher.Constraint("DistanceX", 8, 3, 9, 3, Q("1 in")),
    Sketcher.Constraint("DistanceX", 9, 3, 10, 3, Q("1 in")),
    Sketcher.Constraint("DistanceX", 10, 3, 11, 3, Q("1 in")),
    Sketcher.Constraint("DistanceX", 11, 3, 12, 3, Q("1 in")),
    Sketcher.Constraint("DistanceY", 12, 3, 11, 3, Q("11 in")),
])
sketch5.setExpression("Constraints[94]", "Params.sketch5_diameter")
pocket2 = body.newObject("PartDesign::Pocket", "Pocket001")
pocket2.Profile = sketch5
pocket2.Type = "ThroughAll"
pocket2.Reversed = True

# Sketch on YZ plane
sketch6 = body.newObject("Sketcher::SketchObject", "Sketch005")
sketch6.AttachmentSupport = (doc.getObject("YZ_Plane"), [""])
sketch6.MapMode = "FlatFace"
sketch6.AttachmentOffset = App.Placement(V(0, 0, -94.5875), App.Rotation())
add_polygon(sketch6, [(173, 171), (-83, 171), (-83, -156), (173, -156)])  # lines 0-3
sketch6.addConstraint([
    Sketcher.Constraint("Horizontal", 0),
    Sketcher.Constraint("Vertical", 1),
    Sketcher.Constraint("Horizontal", 2),
    Sketcher.Constraint("Vertical", 3),
    Sketcher.Constraint("DistanceX", 0, 2, 0, 1, 256.091806),
    Sketcher.Constraint("DistanceY", 1, 2, 1, 1, 327.140785),
    Sketcher.Constraint("DistanceX", 0, 2, -1, 1, 83.135389),
    Sketcher.Constraint("DistanceY", -1, 1, 0, 2, 171.399009),
])
pocket3 = body.newObject("PartDesign::Pocket", "Pocket002")
pocket3.Profile = sketch6
pocket3.Type = "ThroughAll"
pocket3.Reversed = True

# Sketch on YZ plane
sketch7 = body.newObject("Sketcher::SketchObject", "Sketch006")
sketch7.AttachmentSupport = (doc.getObject("YZ_Plane"), [""])
sketch7.MapMode = "FlatFace"
sketch7.AttachmentOffset = App.Placement(V(0, 0, -94.5875), App.Rotation())
add_polygon(sketch7, [(46, 130), (-3, 130), (-3, -130), (46, -130)])  # lines 0-3
sketch7.addConstraint([
    Sketcher.Constraint("Horizontal", 0),
    Sketcher.Constraint("Vertical", 1),
    Sketcher.Constraint("Horizontal", 2),
    Sketcher.Constraint("Vertical", 3),
    Sketcher.Constraint("DistanceY", 1, 2, 1, 1, Q("10.25 in")),
    Sketcher.Constraint("DistanceX", -1, 1, 2, 2, Q("1.8 in")),
    Sketcher.Constraint("DistanceX", 0, 2, 0, 1, Q("1.925 in")),
    Sketcher.Constraint("DistanceY", -1, 1, 0, 2, Q("5.125 in")),
])
sketch7.setExpression("Constraints[8]", "Params.sketch7_height")
sketch7.setExpression("Constraints[10]", "Params.sketch7_width")
pad4 = body.newObject("PartDesign::Pad", "Pad003")
pad4.Profile = sketch7
pad4.setExpression("Length", "Params.pad4_length")

# Sketch on XY plane
sketch8 = body.newObject("Sketcher::SketchObject", "Sketch007")
sketch8.AttachmentSupport = (doc.getObject("XY_Plane"), [""])
sketch8.MapMode = "FlatFace"
sketch8.AttachmentOffset = App.Placement(V(0, 0, 19.975), App.Rotation())
add_polygon(sketch8, [(-366, 149), (-366, -117), (16, -117), (16, 149)])  # lines 0-3
sketch8.addConstraint([
    Sketcher.Constraint("Vertical", 0),
    Sketcher.Constraint("Horizontal", 1),
    Sketcher.Constraint("Vertical", 2),
    Sketcher.Constraint("Horizontal", 3),
    Sketcher.Constraint("DistanceY", 0, 2, 0, 1, 265.6533),
    Sketcher.Constraint("DistanceX", 1, 1, 1, 2, 381.398208),
    Sketcher.Constraint("DistanceY", 0, 2, -1, 1, 117.048409),
    Sketcher.Constraint("DistanceX", 0, 2, -1, 1, 365.676903),
])
pocket4 = body.newObject("PartDesign::Pocket", "Pocket003")
pocket4.Profile = sketch8
pocket4.Type = "ThroughAll"
pocket4.Reversed = True

# Sketch on XY plane
sketch9 = body.newObject("Sketcher::SketchObject", "Sketch008")
sketch9.AttachmentSupport = (doc.getObject("XY_Plane"), [""])
sketch9.MapMode = "FlatFace"
sketch9.AttachmentOffset = App.Placement(V(0, 0, 19.975), App.Rotation())
add_polygon(sketch9, [(-305, 46), (-305, -3), (-91, -3), (-91, 46)])  # lines 0-3
sketch9.addConstraint([
    Sketcher.Constraint("Vertical", 0),
    Sketcher.Constraint("Horizontal", 1),
    Sketcher.Constraint("Vertical", 2),
    Sketcher.Constraint("Horizontal", 3),
    Sketcher.Constraint("DistanceX", 0, 2, -1, 1, Q("12 in")),
    Sketcher.Constraint("DistanceY", -1, 1, 2, 2, Q("1.8 in")),
    Sketcher.Constraint("DistanceY", 0, 2, 0, 1, Q("1.925 in")),
    Sketcher.Constraint("DistanceX", 1, 1, 1, 2, 213.3875),
])
sketch9.setExpression("Constraints[10]", "Params.sketch9_height")
pad5 = body.newObject("PartDesign::Pad", "Pad004")
pad5.Profile = sketch9
pad5.setExpression("Length", "Params.pad5_length")

doc.recompute()
